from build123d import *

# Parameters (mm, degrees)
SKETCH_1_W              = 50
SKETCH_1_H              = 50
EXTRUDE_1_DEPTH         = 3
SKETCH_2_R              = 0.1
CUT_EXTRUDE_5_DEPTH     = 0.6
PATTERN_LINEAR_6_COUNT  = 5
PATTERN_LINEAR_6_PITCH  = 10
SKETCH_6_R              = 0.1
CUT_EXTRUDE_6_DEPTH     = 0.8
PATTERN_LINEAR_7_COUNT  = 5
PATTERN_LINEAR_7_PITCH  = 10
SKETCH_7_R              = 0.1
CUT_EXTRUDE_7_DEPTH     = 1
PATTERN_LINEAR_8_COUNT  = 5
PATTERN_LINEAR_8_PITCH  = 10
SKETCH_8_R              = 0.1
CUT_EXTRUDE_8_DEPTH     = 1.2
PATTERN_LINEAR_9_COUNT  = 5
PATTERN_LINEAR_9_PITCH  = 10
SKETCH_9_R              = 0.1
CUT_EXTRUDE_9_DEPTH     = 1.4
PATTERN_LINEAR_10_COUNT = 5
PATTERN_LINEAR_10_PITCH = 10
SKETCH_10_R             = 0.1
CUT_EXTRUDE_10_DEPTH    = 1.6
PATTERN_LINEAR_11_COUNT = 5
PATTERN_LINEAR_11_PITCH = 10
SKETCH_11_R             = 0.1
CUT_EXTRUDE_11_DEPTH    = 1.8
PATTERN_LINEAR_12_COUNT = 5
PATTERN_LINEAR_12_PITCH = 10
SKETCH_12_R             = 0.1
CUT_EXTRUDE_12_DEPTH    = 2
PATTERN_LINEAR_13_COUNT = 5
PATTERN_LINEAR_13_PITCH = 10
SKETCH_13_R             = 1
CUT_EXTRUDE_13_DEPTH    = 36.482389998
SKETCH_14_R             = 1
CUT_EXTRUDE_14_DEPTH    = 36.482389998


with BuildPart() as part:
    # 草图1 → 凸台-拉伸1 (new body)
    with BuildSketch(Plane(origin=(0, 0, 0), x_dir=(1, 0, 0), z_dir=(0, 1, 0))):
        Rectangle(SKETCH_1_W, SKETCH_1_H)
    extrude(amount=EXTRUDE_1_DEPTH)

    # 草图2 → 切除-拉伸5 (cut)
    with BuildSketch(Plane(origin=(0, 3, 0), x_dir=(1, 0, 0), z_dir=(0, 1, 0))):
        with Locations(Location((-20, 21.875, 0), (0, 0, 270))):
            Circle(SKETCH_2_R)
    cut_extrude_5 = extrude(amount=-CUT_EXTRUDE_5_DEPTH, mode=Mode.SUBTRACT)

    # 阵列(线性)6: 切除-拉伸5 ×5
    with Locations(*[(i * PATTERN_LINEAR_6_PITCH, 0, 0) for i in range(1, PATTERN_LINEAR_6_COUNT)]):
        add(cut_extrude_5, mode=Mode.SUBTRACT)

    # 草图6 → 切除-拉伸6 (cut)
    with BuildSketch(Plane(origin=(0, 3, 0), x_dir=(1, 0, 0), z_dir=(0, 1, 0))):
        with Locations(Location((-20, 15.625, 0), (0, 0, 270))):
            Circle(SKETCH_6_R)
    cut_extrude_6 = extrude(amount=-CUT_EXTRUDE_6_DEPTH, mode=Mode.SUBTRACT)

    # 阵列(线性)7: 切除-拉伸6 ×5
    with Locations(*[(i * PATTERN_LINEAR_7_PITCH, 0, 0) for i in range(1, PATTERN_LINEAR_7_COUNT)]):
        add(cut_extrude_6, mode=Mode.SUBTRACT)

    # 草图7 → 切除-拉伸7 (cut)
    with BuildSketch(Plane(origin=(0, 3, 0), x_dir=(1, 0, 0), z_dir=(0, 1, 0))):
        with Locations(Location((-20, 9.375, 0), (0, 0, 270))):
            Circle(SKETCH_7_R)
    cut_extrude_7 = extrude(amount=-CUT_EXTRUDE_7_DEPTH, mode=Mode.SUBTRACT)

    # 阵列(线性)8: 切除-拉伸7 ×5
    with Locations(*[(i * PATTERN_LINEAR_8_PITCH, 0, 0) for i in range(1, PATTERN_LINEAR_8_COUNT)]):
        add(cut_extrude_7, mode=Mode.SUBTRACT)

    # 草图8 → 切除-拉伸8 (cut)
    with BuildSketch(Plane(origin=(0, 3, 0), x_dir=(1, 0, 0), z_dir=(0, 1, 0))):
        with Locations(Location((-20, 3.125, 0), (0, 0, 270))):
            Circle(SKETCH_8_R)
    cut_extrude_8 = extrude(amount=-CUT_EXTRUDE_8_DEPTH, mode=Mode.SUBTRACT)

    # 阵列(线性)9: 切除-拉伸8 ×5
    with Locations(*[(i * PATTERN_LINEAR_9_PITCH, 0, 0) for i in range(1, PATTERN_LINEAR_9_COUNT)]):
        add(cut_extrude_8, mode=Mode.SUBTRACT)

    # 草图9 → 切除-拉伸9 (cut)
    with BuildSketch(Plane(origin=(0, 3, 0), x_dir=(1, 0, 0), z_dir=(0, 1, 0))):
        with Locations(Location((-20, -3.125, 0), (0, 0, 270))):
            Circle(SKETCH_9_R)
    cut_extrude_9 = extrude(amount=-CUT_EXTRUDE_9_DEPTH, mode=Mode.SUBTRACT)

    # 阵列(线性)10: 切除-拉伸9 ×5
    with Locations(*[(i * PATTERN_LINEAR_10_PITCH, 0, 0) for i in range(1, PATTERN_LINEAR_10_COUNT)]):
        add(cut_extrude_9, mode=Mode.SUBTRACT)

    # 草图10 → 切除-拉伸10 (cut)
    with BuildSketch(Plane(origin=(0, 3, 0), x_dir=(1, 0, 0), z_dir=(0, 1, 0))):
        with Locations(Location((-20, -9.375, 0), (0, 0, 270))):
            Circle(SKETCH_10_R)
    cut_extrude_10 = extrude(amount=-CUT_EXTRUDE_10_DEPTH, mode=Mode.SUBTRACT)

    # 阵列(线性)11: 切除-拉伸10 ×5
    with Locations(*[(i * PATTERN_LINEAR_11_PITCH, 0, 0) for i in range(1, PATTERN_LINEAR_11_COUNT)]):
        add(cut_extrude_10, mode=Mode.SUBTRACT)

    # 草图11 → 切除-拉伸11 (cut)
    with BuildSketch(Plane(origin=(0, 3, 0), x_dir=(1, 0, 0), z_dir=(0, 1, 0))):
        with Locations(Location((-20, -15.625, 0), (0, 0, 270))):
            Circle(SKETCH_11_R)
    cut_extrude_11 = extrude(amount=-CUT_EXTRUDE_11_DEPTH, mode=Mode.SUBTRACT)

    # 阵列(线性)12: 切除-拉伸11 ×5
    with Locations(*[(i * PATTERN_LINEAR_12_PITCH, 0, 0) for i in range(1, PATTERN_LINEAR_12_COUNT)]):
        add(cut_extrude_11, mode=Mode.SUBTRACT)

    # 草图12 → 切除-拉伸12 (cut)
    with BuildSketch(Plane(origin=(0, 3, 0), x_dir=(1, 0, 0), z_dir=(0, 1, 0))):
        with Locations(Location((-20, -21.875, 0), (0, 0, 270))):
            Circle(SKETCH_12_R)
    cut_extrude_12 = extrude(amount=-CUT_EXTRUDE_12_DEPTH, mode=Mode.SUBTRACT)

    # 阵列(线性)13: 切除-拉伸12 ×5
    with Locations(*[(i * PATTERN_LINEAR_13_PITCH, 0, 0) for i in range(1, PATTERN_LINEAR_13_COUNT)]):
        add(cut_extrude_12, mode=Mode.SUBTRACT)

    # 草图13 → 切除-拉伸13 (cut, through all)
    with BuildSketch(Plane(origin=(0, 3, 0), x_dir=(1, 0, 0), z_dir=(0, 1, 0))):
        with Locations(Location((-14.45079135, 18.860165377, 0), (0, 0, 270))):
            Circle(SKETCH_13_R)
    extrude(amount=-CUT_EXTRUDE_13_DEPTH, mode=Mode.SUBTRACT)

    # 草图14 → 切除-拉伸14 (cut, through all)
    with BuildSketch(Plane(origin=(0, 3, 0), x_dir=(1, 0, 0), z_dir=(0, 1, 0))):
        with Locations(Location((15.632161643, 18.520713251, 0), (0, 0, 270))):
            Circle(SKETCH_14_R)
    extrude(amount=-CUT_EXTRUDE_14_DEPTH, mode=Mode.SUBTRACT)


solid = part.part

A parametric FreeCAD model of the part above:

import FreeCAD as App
import Part
import Sketcher

doc = App.newDocument("Part")
params = doc.addObject("Spreadsheet::Sheet", "Params")
for row, (alias, value) in enumerate([
    ("sketch1_width", "50 mm"),
    ("pad1_length", "3 mm"),
    ("sketch2_diameter", "0.2 mm"),
    ("pocket1_length", "0.6 mm"),
    ("linearpattern_pitch", "10 mm"),
    ("sketch3_diameter", "0.2 mm"),
    ("pocket2_length", "0.8 mm"),
    ("linearpattern2_pitch", "10 mm"),
    ("sketch4_diameter", "0.2 mm"),
    ("pocket3_length", "1 mm"),
    ("linearpattern3_pitch", "10 mm"),
    ("sketch5_diameter", "0.2 mm"),
    ("pocket4_length", "1.2 mm"),
    ("linearpattern4_pitch", "10 mm"),
    ("sketch6_diameter", "0.2 mm"),
    ("pocket5_length", "1.4 mm"),
    ("linearpattern5_pitch", "10 mm"),
    ("sketch7_diameter", "0.2 mm"),
    ("pocket6_length", "1.6 mm"),
    ("linearpattern6_pitch", "10 mm"),
    ("sketch8_diameter", "0.2 mm"),
    ("pocket7_length", "1.8 mm"),
    ("linearpattern7_pitch", "10 mm"),
    ("sketch9_diameter", "0.2 mm"),
    ("pocket8_length", "2 mm"),
    ("linearpattern8_pitch", "10 mm"),
    ("sketch10_diameter", "2 mm"),
    ("sketch11_diameter", "2 mm"),
], start=1):
    params.set(f"A{row}", alias)
    params.set(f"B{row}", "=" + value)
    params.setAlias(f"B{row}", alias)

body = doc.addObject("PartDesign::Body", "Body")

# Sketch on XZ plane
sketch1 = body.newObject("Sketcher::SketchObject", "Sketch")
sketch1.AttachmentSupport = (doc.getObject("XZ_Plane"), [""])
sketch1.MapMode = "FlatFace"
sketch1.addGeometry([
    Part.LineSegment(App.Vector(-25, -25, 0), App.Vector(-25, 25, 0)),
    Part.LineSegment(App.Vector(-25, 25, 0), App.Vector(25, 25, 0)),
    Part.LineSegment(App.Vector(25, 25, 0), App.Vector(25, -25, 0)),
    Part.LineSegment(App.Vector(25, -25, 0), App.Vector(-25, -25, 0)),
], False)
sketch1.addConstraint([
    Sketcher.Constraint("Coincident", 0, 2, 1, 1),
    Sketcher.Constraint("Coincident", 1, 2, 2, 1),
    Sketcher.Constraint("Coincident", 2, 2, 3, 1),
    Sketcher.Constraint("Coincident", 3, 2, 0, 1),
    Sketcher.Constraint("Vertical", 0),
    Sketcher.Constraint("Horizontal", 1),
    Sketcher.Constraint("Vertical", 2),
    Sketcher.Constraint("Horizontal", 3),
    Sketcher.Constraint("Symmetric", 0, 2, 2, 2, -1, 1),
    Sketcher.Constraint("Equal", 3, 0),
    Sketcher.Constraint("DistanceX", 1, 1, 1, 2, 50.0),
])
sketch1.setExpression("Constraints[10]", "Params.sketch1_width")
pad1 = body.newObject("PartDesign::Pad", "Pad")
pad1.Profile = sketch1
pad1.setExpression("Length", "Params.pad1_length")
pad1.Reversed = True

# Sketch on XZ plane
sketch2 = body.newObject("Sketcher::SketchObject", "Sketch001")
sketch2.AttachmentSupport = (doc.getObject("XZ_Plane"), [""])
sketch2.MapMode = "FlatFace"
sketch2.AttachmentOffset = App.Placement(App.Vector(0, 0, -3), App.Rotation())
sketch2.addGeometry(Part.Circle(App.Vector(-20, -21.88, 0), App.Vector(0, 0, 1), 0.1), False)
sketch2.addConstraint([
    Sketcher.Constraint("Diameter", 0, 0.2),
    Sketcher.Constraint("DistanceX", 0, 3, -1, 1, 20.0),
    Sketcher.Constraint("DistanceY", 0, 3, -1, 1, 21.875),
])
sketch2.setExpression("Constraints[0]", "Params.sketch2_diameter")
pocket1 = body.newObject("PartDesign::Pocket", "Pocket")
pocket1.Profile = sketch2
pocket1.setExpression("Length", "Params.pocket1_length")
pocket1.Reversed = True
doc.recompute()

linearpattern = body.newObject("PartDesign::LinearPattern", "LinearPattern")
linearpattern.Originals = [pocket1]
linearpattern.Direction = (doc.getObject("X_Axis"), [""])
linearpattern.Mode = "offset"
linearpattern.setExpression("Offset", "Params.linearpattern_pitch")
linearpattern.Occurrences = 5
body.Tip = linearpattern

# Sketch on XZ plane
sketch3 = body.newObject("Sketcher::SketchObject", "Sketch002")
sketch3.AttachmentSupport = (doc.getObject("XZ_Plane"), [""])
sketch3.MapMode = "FlatFace"
sketch3.AttachmentOffset = App.Placement(App.Vector(0, 0, -3), App.Rotation())
sketch3.addGeometry(Part.Circle(App.Vector(-20, -15.62, 0), App.Vector(0, 0, 1), 0.1), False)
sketch3.addConstraint([
    Sketcher.Constraint("Diameter", 0, 0.2),
    Sketcher.Constraint("DistanceX", 0, 3, -1, 1, 20.0),
    Sketcher.Constraint("DistanceY", 0, 3, -1, 1, 15.625),
])
sketch3.setExpression("Constraints[0]", "Params.sketch3_diameter")
pocket2 = body.newObject("PartDesign::Pocket", "Pocket001")
pocket2.Profile = sketch3
pocket2.setExpression("Length", "Params.pocket2_length")
pocket2.Reversed = True
doc.recompute()

linearpattern2 = body.newObject("PartDesign::LinearPattern", "LinearPattern001")
linearpattern2.Originals = [pocket2]
linearpattern2.Direction = (doc.getObject("X_Axis"), [""])
linearpattern2.Mode = "offset"
linearpattern2.setExpression("Offset", "Params.linearpattern2_pitch")
linearpattern2.Occurrences = 5
body.Tip = linearpattern2

# Sketch on XZ plane
sketch4 = body.newObject("Sketcher::SketchObject", "Sketch003")
sketch4.AttachmentSupport = (doc.getObject("XZ_Plane"), [""])
sketch4.MapMode = "FlatFace"
sketch4.AttachmentOffset = App.Placement(App.Vector(0, 0, -3), App.Rotation())
sketch4.addGeometry(Part.Circle(App.Vector(-20, -9.38, 0), App.Vector(0, 0, 1), 0.1), False)
sketch4.addConstraint([
    Sketcher.Constraint("Diameter", 0, 0.2),
    Sketcher.Constraint("DistanceX", 0, 3, -1, 1, 20.0),
    Sketcher.Constraint("DistanceY", 0, 3, -1, 1, 9.375),
])
sketch4.setExpression("Constraints[0]", "Params.sketch4_diameter")
pocket3 = body.newObject("PartDesign::Pocket", "Pocket002")
pocket3.Profile = sketch4
pocket3.setExpression("Length", "Params.pocket3_length")
pocket3.Reversed = True
doc.recompute()

linearpattern3 = body.newObject("PartDesign::LinearPattern", "LinearPattern002")
linearpattern3.Originals = [pocket3]
linearpattern3.Direction = (doc.getObject("X_Axis"), [""])
linearpattern3.Mode = "offset"
linearpattern3.setExpression("Offset", "Params.linearpattern3_pitch")
linearpattern3.Occurrences = 5
body.Tip = linearpattern3

# Sketch on XZ plane
sketch5 = body.newObject("Sketcher::SketchObject", "Sketch004")
sketch5.AttachmentSupport = (doc.getObject("XZ_Plane"), [""])
sketch5.MapMode = "FlatFace"
sketch5.AttachmentOffset = App.Placement(App.Vector(0, 0, -3), App.Rotation())
sketch5.addGeometry(Part.Circle(App.Vector(-20, -3.12, 0), App.Vector(0, 0, 1), 0.1), False)
sketch5.addConstraint([
    Sketcher.Constraint("Diameter", 0, 0.2),
    Sketcher.Constraint("DistanceX", 0, 3, -1, 1, 20.0),
    Sketcher.Constraint("DistanceY", 0, 3, -1, 1, 3.125),
])
sketch5.setExpression("Constraints[0]", "Params.sketch5_diameter")
pocket4 = body.newObject("PartDesign::Pocket", "Pocket003")
pocket4.Profile = sketch5
pocket4.setExpression("Length", "Params.pocket4_length")
pocket4.Reversed = True
doc.recompute()

linearpattern4 = body.newObject("PartDesign::LinearPattern", "LinearPattern003")
linearpattern4.Originals = [pocket4]
linearpattern4.Direction = (doc.getObject("X_Axis"), [""])
linearpattern4.Mode = "offset"
linearpattern4.setExpression("Offset", "Params.linearpattern4_pitch")
linearpattern4.Occurrences = 5
body.Tip = linearpattern4

# Sketch on XZ plane
sketch6 = body.newObject("Sketcher::SketchObject", "Sketch005")
sketch6.AttachmentSupport = (doc.getObject("XZ_Plane"), [""])
sketch6.MapMode = "FlatFace"
sketch6.AttachmentOffset = App.Placement(App.Vector(0, 0, -3), App.Rotation())
sketch6.addGeometry(Part.Circle(App.Vector(-20, 3.12, 0), App.Vector(0, 0, 1), 0.1), False)
sketch6.addConstraint([
    Sketcher.Constraint("Diameter", 0, 0.2),
    Sketcher.Constraint("DistanceX", 0, 3, -1, 1, 20.0),
    Sketcher.Constraint("DistanceY", -1, 1, 0, 3, 3.125),
])
sketch6.setExpression("Constraints[0]", "Params.sketch6_diameter")
pocket5 = body.newObject("PartDesign::Pocket", "Pocket004")
pocket5.Profile = sketch6
pocket5.setExpression("Length", "Params.pocket5_length")
pocket5.Reversed = True
doc.recompute()

linearpattern5 = body.newObject("PartDesign::LinearPattern", "LinearPattern004")
linearpattern5.Originals = [pocket5]
linearpattern5.Direction = (doc.getObject("X_Axis"), [""])
linearpattern5.Mode = "offset"
linearpattern5.setExpression("Offset", "Params.linearpattern5_pitch")
linearpattern5.Occurrences = 5
body.Tip = linearpattern5

# Sketch on XZ plane
sketch7 = body.newObject("Sketcher::SketchObject", "Sketch006")
sketch7.AttachmentSupport = (doc.getObject("XZ_Plane"), [""])
sketch7.MapMode = "FlatFace"
sketch7.AttachmentOffset = App.Placement(App.Vector(0, 0, -3), App.Rotation())
sketch7.addGeometry(Part.Circle(App.Vector(-20, 9.38, 0), App.Vector(0, 0, 1), 0.1), False)
sketch7.addConstraint([
    Sketcher.Constraint("Diameter", 0, 0.2),
    Sketcher.Constraint("DistanceX", 0, 3, -1, 1, 20.0),
    Sketcher.Constraint("DistanceY", -1, 1, 0, 3, 9.375),
])
sketch7.setExpression("Constraints[0]", "Params.sketch7_diameter")
pocket6 = body.newObject("PartDesign::Pocket", "Pocket005")
pocket6.Profile = sketch7
pocket6.setExpression("Length", "Params.pocket6_length")
pocket6.Reversed = True
doc.recompute()

linearpattern6 = body.newObject("PartDesign::LinearPattern", "LinearPattern005")
linearpattern6.Originals = [pocket6]
linearpattern6.Direction = (doc.getObject("X_Axis"), [""])
linearpattern6.Mode = "offset"
linearpattern6.setExpression("Offset", "Params.linearpattern6_pitch")
linearpattern6.Occurrences = 5
body.Tip = linearpattern6

# Sketch on XZ plane
sketch8 = body.newObject("Sketcher::SketchObject", "Sketch007")
sketch8.AttachmentSupport = (doc.getObject("XZ_Plane"), [""])
sketch8.MapMode = "FlatFace"
sketch8.AttachmentOffset = App.Placement(App.Vector(0, 0, -3), App.Rotation())
sketch8.addGeometry(Part.Circle(App.Vector(-20, 15.62, 0), App.Vector(0, 0, 1), 0.1), False)
sketch8.addConstraint([
    Sketcher.Constraint("Diameter", 0, 0.2),
    Sketcher.Constraint("DistanceX", 0, 3, -1, 1, 20.0),
    Sketcher.Constraint("DistanceY", -1, 1, 0, 3, 15.625),
])
sketch8.setExpression("Constraints[0]", "Params.sketch8_diameter")
pocket7 = body.newObject("PartDesign::Pocket", "Pocket006")
pocket7.Profile = sketch8
pocket7.setExpression("Length", "Params.pocket7_length")
pocket7.Reversed = True
doc.recompute()

linearpattern7 = body.newObject("PartDesign::LinearPattern", "LinearPattern006")
linearpattern7.Originals = [pocket7]
linearpattern7.Direction = (doc.getObject("X_Axis"), [""])
linearpattern7.Mode = "offset"
linearpattern7.setExpression("Offset", "Params.linearpattern7_pitch")
linearpattern7.Occurrences = 5
body.Tip = linearpattern7

# Sketch on XZ plane
sketch9 = body.newObject("Sketcher::SketchObject", "Sketch008")
sketch9.AttachmentSupport = (doc.getObject("XZ_Plane"), [""])
sketch9.MapMode = "FlatFace"
sketch9.AttachmentOffset = App.Placement(App.Vector(0, 0, -3), App.Rotation())
sketch9.addGeometry(Part.Circle(App.Vector(-20, 21.88, 0), App.Vector(0, 0, 1), 0.1), False)
sketch9.addConstraint([
    Sketcher.Constraint("Diameter", 0, 0.2),
    Sketcher.Constraint("DistanceX", 0, 3, -1, 1, 20.0),
    Sketcher.Constraint("DistanceY", -1, 1, 0, 3, 21.875),
])
sketch9.setExpression("Constraints[0]", "Params.sketch9_diameter")
pocket8 = body.newObject("PartDesign::Pocket", "Pocket007")
pocket8.Profile = sketch9
pocket8.setExpression("Length", "Params.pocket8_length")
pocket8.Reversed = True
doc.recompute()

linearpattern8 = body.newObject("PartDesign::LinearPattern", "LinearPattern007")
linearpattern8.Originals = [pocket8]
linearpattern8.Direction = (doc.getObject("X_Axis"), [""])
linearpattern8.Mode = "offset"
linearpattern8.setExpression("Offset", "Params.linearpattern8_pitch")
linearpattern8.Occurrences = 5
body.Tip = linearpattern8

# Sketch on XZ plane
sketch10 = body.newObject("Sketcher::SketchObject", "Sketch009")
sketch10.AttachmentSupport = (doc.getObject("XZ_Plane"), [""])
sketch10.MapMode = "FlatFace"
sketch10.AttachmentOffset = App.Placement(App.Vector(0, 0, -3), App.Rotation())
sketch10.addGeometry(Part.Circle(App.Vector(-14.5, -18.9, 0), App.Vector(0, 0, 1), 1), False)
sketch10.addConstraint([
    Sketcher.Constraint("Diameter", 0, 2.0),
    Sketcher.Constraint("DistanceX", 0, 3, -1, 1, 14.450791),
    Sketcher.Constraint("DistanceY", 0, 3, -1, 1, 18.860165),
])
sketch10.setExpression("Constraints[0]", "Params.sketch10_diameter")
pocket9 = body.newObject("PartDesign::Pocket", "Pocket008")
pocket9.Profile = sketch10
pocket9.Type = "ThroughAll"
pocket9.Reversed = True

# Sketch on XZ plane
sketch11 = body.newObject("Sketcher::SketchObject", "Sketch010")
sketch11.AttachmentSupport = (doc.getObject("XZ_Plane"), [""])
sketch11.MapMode = "FlatFace"
sketch11.AttachmentOffset = App.Placement(App.Vector(0, 0, -3), App.Rotation())
sketch11.addGeometry(Part.Circle(App.Vector(15.6, -18.5, 0), App.Vector(0, 0, 1), 1), False)
sketch11.addConstraint([
    Sketcher.Constraint("Diameter", 0, 2.0),
    Sketcher.Constraint("DistanceX", -1, 1, 0, 3, 15.632162),
    Sketcher.Constraint("DistanceY", 0, 3, -1, 1, 18.520713),
])
sketch11.setExpression("Constraints[0]", "Params.sketch11_diameter")
pocket10 = body.newObject("PartDesign::Pocket", "Pocket009")
pocket10.Profile = sketch11
pocket10.Type = "ThroughAll"
pocket10.Reversed = True

doc.recompute()
